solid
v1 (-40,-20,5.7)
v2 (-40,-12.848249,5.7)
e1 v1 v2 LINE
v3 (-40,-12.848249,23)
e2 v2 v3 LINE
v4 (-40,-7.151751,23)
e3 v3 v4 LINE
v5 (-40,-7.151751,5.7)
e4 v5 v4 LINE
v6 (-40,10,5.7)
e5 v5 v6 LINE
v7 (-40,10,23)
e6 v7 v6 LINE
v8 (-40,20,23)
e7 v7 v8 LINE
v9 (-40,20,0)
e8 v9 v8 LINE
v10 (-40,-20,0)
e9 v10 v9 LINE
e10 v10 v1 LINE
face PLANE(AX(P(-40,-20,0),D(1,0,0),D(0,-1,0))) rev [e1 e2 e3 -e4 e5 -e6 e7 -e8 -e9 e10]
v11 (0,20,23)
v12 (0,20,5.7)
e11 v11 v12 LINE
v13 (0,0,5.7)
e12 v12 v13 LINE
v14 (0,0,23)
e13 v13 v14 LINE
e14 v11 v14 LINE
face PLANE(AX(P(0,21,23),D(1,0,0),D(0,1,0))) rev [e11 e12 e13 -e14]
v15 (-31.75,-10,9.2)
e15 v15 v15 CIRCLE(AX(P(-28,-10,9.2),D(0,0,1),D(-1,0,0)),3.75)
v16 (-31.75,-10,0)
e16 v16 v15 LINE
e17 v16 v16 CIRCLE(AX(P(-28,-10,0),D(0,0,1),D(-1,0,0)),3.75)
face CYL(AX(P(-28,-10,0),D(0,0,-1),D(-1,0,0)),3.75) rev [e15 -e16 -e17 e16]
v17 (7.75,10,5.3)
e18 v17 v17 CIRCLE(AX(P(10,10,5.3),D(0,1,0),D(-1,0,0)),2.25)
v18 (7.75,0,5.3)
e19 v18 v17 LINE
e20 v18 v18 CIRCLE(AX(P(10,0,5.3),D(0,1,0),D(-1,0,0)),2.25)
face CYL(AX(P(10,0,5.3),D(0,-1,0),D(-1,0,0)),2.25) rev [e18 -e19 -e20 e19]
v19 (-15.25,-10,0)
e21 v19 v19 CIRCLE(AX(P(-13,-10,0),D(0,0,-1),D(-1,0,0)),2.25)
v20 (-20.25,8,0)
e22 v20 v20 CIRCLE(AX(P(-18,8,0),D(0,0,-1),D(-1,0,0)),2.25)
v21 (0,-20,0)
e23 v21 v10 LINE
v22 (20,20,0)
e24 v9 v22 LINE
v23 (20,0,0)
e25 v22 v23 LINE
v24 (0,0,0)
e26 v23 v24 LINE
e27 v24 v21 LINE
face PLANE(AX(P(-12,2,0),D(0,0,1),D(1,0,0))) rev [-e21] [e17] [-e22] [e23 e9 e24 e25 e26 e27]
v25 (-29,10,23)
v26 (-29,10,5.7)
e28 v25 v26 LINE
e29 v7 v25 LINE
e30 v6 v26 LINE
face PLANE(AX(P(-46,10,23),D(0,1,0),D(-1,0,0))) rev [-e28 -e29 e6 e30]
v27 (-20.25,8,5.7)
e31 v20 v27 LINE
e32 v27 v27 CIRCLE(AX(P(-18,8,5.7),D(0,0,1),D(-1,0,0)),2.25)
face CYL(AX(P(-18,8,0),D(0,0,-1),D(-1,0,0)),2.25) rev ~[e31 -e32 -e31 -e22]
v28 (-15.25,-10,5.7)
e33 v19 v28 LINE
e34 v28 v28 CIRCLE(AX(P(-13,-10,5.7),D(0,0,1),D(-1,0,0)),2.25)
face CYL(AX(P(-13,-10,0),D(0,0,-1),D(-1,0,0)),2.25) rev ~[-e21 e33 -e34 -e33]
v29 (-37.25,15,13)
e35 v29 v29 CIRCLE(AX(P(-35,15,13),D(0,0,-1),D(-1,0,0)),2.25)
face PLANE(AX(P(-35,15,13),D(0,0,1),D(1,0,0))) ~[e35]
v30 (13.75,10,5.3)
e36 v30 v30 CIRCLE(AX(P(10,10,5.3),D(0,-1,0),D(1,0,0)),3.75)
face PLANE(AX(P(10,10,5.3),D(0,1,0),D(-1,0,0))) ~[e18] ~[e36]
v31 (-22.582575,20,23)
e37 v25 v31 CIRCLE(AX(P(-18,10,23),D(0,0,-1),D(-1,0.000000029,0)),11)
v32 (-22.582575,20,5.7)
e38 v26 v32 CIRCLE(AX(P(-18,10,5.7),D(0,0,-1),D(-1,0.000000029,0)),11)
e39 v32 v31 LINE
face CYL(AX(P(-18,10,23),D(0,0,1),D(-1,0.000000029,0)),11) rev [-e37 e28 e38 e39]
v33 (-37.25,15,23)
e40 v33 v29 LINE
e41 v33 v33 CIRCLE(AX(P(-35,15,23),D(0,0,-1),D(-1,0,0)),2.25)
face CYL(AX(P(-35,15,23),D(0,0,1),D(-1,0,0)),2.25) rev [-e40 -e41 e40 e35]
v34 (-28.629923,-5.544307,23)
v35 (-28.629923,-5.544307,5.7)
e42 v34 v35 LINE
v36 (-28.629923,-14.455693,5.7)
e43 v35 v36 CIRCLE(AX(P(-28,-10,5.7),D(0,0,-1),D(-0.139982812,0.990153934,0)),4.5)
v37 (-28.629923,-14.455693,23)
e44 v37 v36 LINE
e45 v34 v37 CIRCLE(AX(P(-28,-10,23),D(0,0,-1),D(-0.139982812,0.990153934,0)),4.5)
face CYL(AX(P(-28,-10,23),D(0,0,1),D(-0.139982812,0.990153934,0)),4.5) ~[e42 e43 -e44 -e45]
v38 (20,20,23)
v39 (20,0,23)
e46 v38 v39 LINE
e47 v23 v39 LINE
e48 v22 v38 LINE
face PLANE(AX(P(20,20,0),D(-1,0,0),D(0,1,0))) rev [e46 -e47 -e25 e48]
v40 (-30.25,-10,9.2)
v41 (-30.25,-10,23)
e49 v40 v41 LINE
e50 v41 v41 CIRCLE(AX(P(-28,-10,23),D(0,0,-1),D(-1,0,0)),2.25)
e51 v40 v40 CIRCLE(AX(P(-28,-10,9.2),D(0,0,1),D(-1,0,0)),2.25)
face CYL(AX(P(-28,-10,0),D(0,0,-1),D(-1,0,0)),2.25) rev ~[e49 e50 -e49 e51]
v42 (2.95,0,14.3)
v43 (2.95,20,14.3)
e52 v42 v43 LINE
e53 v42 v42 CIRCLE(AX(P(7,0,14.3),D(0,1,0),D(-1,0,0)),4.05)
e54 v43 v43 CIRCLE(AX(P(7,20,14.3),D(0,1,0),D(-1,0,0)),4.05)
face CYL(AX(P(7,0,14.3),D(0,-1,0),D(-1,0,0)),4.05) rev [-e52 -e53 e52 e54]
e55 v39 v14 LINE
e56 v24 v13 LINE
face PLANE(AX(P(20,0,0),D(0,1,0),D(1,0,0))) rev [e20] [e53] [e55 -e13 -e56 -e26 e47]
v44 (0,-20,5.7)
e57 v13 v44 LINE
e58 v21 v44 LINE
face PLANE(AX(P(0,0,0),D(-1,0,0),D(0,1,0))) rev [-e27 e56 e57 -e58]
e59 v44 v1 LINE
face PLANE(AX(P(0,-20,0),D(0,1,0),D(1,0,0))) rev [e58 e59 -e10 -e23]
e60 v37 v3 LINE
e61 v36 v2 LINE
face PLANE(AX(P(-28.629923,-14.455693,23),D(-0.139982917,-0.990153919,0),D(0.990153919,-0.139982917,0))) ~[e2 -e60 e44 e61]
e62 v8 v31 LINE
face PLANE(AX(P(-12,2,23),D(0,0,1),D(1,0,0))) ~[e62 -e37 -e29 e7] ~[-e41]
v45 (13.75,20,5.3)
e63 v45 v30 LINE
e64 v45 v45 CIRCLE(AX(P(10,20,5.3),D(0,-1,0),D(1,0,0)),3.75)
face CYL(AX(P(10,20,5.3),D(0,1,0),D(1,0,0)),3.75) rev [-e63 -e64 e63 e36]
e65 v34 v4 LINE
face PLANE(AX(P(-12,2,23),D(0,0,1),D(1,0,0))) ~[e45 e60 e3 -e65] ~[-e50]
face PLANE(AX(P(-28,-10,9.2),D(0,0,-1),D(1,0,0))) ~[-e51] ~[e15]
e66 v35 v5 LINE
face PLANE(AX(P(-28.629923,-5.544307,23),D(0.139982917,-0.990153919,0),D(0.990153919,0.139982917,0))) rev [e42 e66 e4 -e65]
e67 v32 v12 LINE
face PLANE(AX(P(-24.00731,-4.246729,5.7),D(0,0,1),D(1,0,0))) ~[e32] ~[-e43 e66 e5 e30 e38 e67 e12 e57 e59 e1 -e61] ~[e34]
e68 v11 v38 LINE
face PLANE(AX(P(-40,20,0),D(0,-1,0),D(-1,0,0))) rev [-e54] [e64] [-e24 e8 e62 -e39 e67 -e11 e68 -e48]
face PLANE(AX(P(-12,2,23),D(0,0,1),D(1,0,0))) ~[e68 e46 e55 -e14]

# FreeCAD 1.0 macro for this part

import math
import FreeCAD as App
import Part
import Sketcher

V = App.Vector
Q = App.Units.Quantity


def add_polygon(sketch, points):
    """Adds a closed chain of lines whose ends are joined by coincident constraints."""
    first, n = sketch.GeometryCount, len(points)
    for a, b in zip(points, points[1:] + points[:1]):
        sketch.addGeometry(Part.LineSegment(App.Vector(*a, 0), App.Vector(*b, 0)), False)
    for i in range(n):
        sketch.addConstraint(Sketcher.Constraint("Coincident", first + i, 2, first + (i + 1) % n, 1))

doc = App.newDocument("Part")
body = doc.addObject("PartDesign::Body", "Body")

sketch1 = body.newObject("Sketcher::SketchObject", "Sketch")
sketch1.AttachmentSupport = (doc.getObject("XY_Plane"), [""])
sketch1.MapMode = "FlatFace"
add_polygon(sketch1, [(0, -20), (40, -20), (40, 20), (-20, 20), (-20, 0), (0, 0)])
sketch1.addGeometry(Part.Circle(V(13, -10, 0), V(0, 0, 1), 2.25), False)
sketch1.addGeometry(Part.Circle(V(28, -10, 0), V(0, 0, 1), 2.25), False)
sketch1.addGeometry(Part.Circle(V(18, 8, 0), V(0, 0, 1), 2.25), False)
sketch1.addConstraint(Sketcher.Constraint("Horizontal", 0))
sketch1.addConstraint(Sketcher.Constraint("Vertical", 1))
sketch1.addConstraint(Sketcher.Constraint("Horizontal", 2))
sketch1.addConstraint(Sketcher.Constraint("Vertical", 3))
sketch1.addConstraint(Sketcher.Constraint("Horizontal", 4))
sketch1.addConstraint(Sketcher.Constraint("Vertical", 5))
sketch1.addConstraint(Sketcher.Constraint("Coincident", 4, 2, -1, 1))
sketch1.addConstraint(Sketcher.Constraint("Equal", 6, 7))
sketch1.addConstraint(Sketcher.Constraint("Equal", 7, 8))
sketch1.addConstraint(Sketcher.Constraint("Horizontal", 6, 3, 7, 3))
sketch1.addConstraint(Sketcher.Constraint("Equal", 0, 1))
sketch1.addConstraint(Sketcher.Constraint("Equal", 4, 3))
sketch1.addConstraint(Sketcher.Constraint("Equal", 3, 5))
sketch1.addConstraint(Sketcher.Constraint("Diameter", 6, Q("4.5 mm")))
sketch1.addConstraint(Sketcher.Constraint("DistanceX", 0, 1, 0, 2, Q("40 mm")))
sketch1.addConstraint(Sketcher.Constraint("DistanceX", -1, 1, 6, 3, Q("13 mm")))
sketch1.addConstraint(Sketcher.Constraint("DistanceY", 6, 3, -1, 1, Q("10 mm")))
sketch1.addConstraint(Sketcher.Constraint("DistanceX", -1, 1, 7, 3, Q("28 mm")))
sketch1.addConstraint(Sketcher.Constraint("DistanceX", -1, 1, 8, 3, Q("18 mm")))
sketch1.addConstraint(Sketcher.Constraint("DistanceY", -1, 1, 8, 3, Q("8 mm")))
pad1 = body.newObject("PartDesign::Pad", "Pad")
pad1.Profile = sketch1
pad1.Length = 23

sketch2 = body.newObject("Sketcher::SketchObject", "Sketch001")
sketch2.AttachmentSupport = (doc.getObject("XY_Plane"), [""])
sketch2.MapMode = "FlatFace"
sketch2.AttachmentOffset = App.Placement(V(0, 0, 23), App.Rotation())
sketch2.addGeometry(Part.LineSegment(V(46, 10, 0), V(29, 10, 0)), False)
sketch2.addGeometry(Part.ArcOfCircle(Part.Circle(V(18, 10, 0), V(0, 0, 1), 11), math.radians(0.000002), math.radians(90.000228)), False)
sketch2.addGeometry(Part.LineSegment(V(17.999956, 21, 0), V(0, 21, 0)), False)
sketch2.addGeometry(Part.LineSegment(V(0, 21, 0), V(0, -23, 0)), False)
sketch2.addGeometry(Part.LineSegment(V(0, -23, 0), V(46, -23, 0)), False)
sketch2.addGeometry(Part.LineSegment(V(46, -23, 0), V(46, -12, 0)), False)
sketch2.addGeometry(Part.LineSegment(V(46, -12, 0), V(28.629923, -14.455693, 0)), False)
sketch2.addGeometry(Part.ArcOfCircle(Part.Circle(V(28, -10, 0), V(0, 0, 1), 4.5), math.radians(81.953148), math.radians(278.046852)), False)
sketch2.addGeometry(Part.LineSegment(V(28.629923, -5.544307, 0), V(46, -8, 0)), False)
sketch2.addGeometry(Part.LineSegment(V(46, -8, 0), V(46, 10, 0)), False)
sketch2.addConstraint(Sketcher.Constraint("Coincident", 0, 2, 1, 1))
sketch2.addConstraint(Sketcher.Constraint("Coincident", 1, 2, 2, 1))
sketch2.addConstraint(Sketcher.Constraint("Coincident", 2, 2, 3, 1))
sketch2.addConstraint(Sketcher.Constraint("Coincident", 3, 2, 4, 1))
sketch2.addConstraint(Sketcher.Constraint("Coincident", 4, 2, 5, 1))
sketch2.addConstraint(Sketcher.Constraint("Coincident", 5, 2, 6, 1))
sketch2.addConstraint(Sketcher.Constraint("Tangent", 6, 2, 7, 2))
sketch2.addConstraint(Sketcher.Constraint("Tangent", 7, 1, 8, 1))
sketch2.addConstraint(Sketcher.Constraint("Coincident", 8, 2, 9, 1))
sketch2.addConstraint(Sketcher.Constraint("Coincident", 9, 2, 0, 1))
sketch2.addConstraint(Sketcher.Constraint("Horizontal", 0))
sketch2.addConstraint(Sketcher.Constraint("Horizontal", 2))
sketch2.addConstraint(Sketcher.Constraint("Vertical", 3))
sketch2.addConstraint(Sketcher.Constraint("Horizontal", 4))
sketch2.addConstraint(Sketcher.Constraint("Vertical", 5))
sketch2.addConstraint(Sketcher.Constraint("Vertical", 9))
sketch2.addConstraint(Sketcher.Constraint("PointOnObject", 2, 2, -2))
sketch2.addConstraint(Sketcher.Constraint("Horizontal", 1, 3, 0, 2))
sketch2.addConstraint(Sketcher.Constraint("Vertical", 6, 2, 7, 1))
sketch2.addConstraint(Sketcher.Constraint("Vertical", 5, 2, 8, 2))
sketch2.addConstraint(Sketcher.Constraint("Radius", 1, Q("11 mm")))
sketch2.addConstraint(Sketcher.Constraint("Radius", 7, Q("4.5 mm")))
sketch2.addConstraint(Sketcher.Constraint("DistanceX", 0, 2, 0, 1, Q("17 mm")))
sketch2.addConstraint(Sketcher.Constraint("DistanceX", 4, 1, 4, 2, Q("46 mm")))
sketch2.addConstraint(Sketcher.Constraint("DistanceY", 3, 2, 3, 1, Q("44 mm")))
sketch2.addConstraint(Sketcher.Constraint("DistanceY", 5, 1, 5, 2, Q("11 mm")))
sketch2.addConstraint(Sketcher.Constraint("DistanceY", 9, 1, 9, 2, Q("18 mm")))
sketch2.addConstraint(Sketcher.Constraint("DistanceY", -1, 1, 1, 3, Q("10 mm")))
sketch2.addConstraint(Sketcher.Constraint("DistanceX", -1, 1, 7, 3, Q("28 mm")))
sketch2.addConstraint(Sketcher.Constraint("DistanceX", 2, 2, 2, 1, Q("17.999956 mm")))
pocket1 = body.newObject("PartDesign::Pocket", "Pocket")
pocket1.Profile = sketch2
pocket1.Length = 17.3

sketch3 = body.newObject("Sketcher::SketchObject", "Sketch002")
sketch3.AttachmentSupport = (doc.getObject("XZ_Plane"), [""])
sketch3.MapMode = "FlatFace"
sketch3.addGeometry(Part.Circle(V(-7, 14.3, 0), V(0, 0, 1), 4.05), False)
sketch3.addGeometry(Part.Circle(V(-10, 5.3, 0), V(0, 0, 1), 2.25), False)
sketch3.addConstraint(Sketcher.Constraint("Diameter", 0, Q("8.1 mm")))
sketch3.addConstraint(Sketcher.Constraint("Diameter", 1, Q("4.5 mm")))
sketch3.addConstraint(Sketcher.Constraint("DistanceX", 0, 3, -1, 1, Q("7 mm")))
sketch3.addConstraint(Sketcher.Constraint("DistanceX", 1, 3, -1, 1, Q("10 mm")))
sketch3.addConstraint(Sketcher.Constraint("DistanceY", 1, 3, 0, 3, Q("9 mm")))
sketch3.addConstraint(Sketcher.Constraint("DistanceY", -1, 1, 0, 3, Q("14.3 mm")))
pocket2 = body.newObject("PartDesign::Pocket", "Pocket001")
pocket2.Profile = sketch3
pocket2.Type = "ThroughAll"

sketch4 = body.newObject("Sketcher::SketchObject", "Sketch003")
sketch4.AttachmentSupport = (doc.getObject("XY_Plane"), [""])
sketch4.MapMode = "FlatFace"
sketch4.AttachmentOffset = App.Placement(V(0, 0, 23), App.Rotation())
sketch4.addGeometry(Part.Circle(V(35, 15, 0), V(0, 0, 1), 2.25), False)
sketch4.addConstraint(Sketcher.Constraint("Diameter", 0, Q("4.5 mm")))
sketch4.addConstraint(Sketcher.Constraint("DistanceX", -1, 1, 0, 3, Q("35 mm")))
sketch4.addConstraint(Sketcher.Constraint("DistanceY", -1, 1, 0, 3, Q("15 mm")))
pocket3 = body.newObject("PartDesign::Pocket", "Pocket002")
pocket3.Profile = sketch4
pocket3.Length = 10

sketch5 = body.newObject("Sketcher::SketchObject", "Sketch004")
sketch5.AttachmentSupport = (doc.getObject("XZ_Plane"), [""])
sketch5.MapMode = "FlatFace"
sketch5.AttachmentOffset = App.Placement(V(0, 0, -20), App.Rotation())
sketch5.addGeometry(Part.Circle(V(-10, 5.3, 0), V(0, 0, 1), 3.75), False)
sketch5.addConstraint(Sketcher.Constraint("Diameter", 0, Q("7.5 mm")))
sketch5.addConstraint(Sketcher.Constraint("DistanceX", 0, 3, -1, 1, Q("10 mm")))
sketch5.addConstraint(Sketcher.Constraint("DistanceY", -1, 1, 0, 3, Q("5.3 mm")))
pocket4 = body.newObject("PartDesign::Pocket", "Pocket003")
pocket4.Profile = sketch5
pocket4.Length = 10
pocket4.Reversed = True

sketch6 = body.newObject("Sketcher::SketchObject", "Sketch005")
sketch6.AttachmentSupport = (doc.getObject("XY_Plane"), [""])
sketch6.MapMode = "FlatFace"
sketch6.addGeometry(Part.Circle(V(28, -10, 0), V(0, 0, 1), 3.75), False)
sketch6.addConstraint(Sketcher.Constraint("Diameter", 0, Q("7.5 mm")))
sketch6.addConstraint(Sketcher.Constraint("DistanceX", -1, 1, 0, 3, Q("28 mm")))
sketch6.addConstraint(Sketcher.Constraint("DistanceY", 0, 3, -1, 1, Q("10 mm")))
pocket5 = body.newObject("PartDesign::Pocket", "Pocket004")
pocket5.Profile = sketch6
pocket5.Length = 9.2
pocket5.Reversed = True
body2 = doc.addObject("PartDesign::Body", "Body001")
doc.recompute()

mirroring = doc.addObject("Part::Mirroring", "Mirroring")
mirroring.Source = body
mirroring.Base = V(0, 0, 0)
mirroring.Normal = V(1, 0, 0)
body2.BaseFeature = mirroring
doc.recompute()
body.Visibility = False
mirroring.Visibility = False

doc.recompute()
